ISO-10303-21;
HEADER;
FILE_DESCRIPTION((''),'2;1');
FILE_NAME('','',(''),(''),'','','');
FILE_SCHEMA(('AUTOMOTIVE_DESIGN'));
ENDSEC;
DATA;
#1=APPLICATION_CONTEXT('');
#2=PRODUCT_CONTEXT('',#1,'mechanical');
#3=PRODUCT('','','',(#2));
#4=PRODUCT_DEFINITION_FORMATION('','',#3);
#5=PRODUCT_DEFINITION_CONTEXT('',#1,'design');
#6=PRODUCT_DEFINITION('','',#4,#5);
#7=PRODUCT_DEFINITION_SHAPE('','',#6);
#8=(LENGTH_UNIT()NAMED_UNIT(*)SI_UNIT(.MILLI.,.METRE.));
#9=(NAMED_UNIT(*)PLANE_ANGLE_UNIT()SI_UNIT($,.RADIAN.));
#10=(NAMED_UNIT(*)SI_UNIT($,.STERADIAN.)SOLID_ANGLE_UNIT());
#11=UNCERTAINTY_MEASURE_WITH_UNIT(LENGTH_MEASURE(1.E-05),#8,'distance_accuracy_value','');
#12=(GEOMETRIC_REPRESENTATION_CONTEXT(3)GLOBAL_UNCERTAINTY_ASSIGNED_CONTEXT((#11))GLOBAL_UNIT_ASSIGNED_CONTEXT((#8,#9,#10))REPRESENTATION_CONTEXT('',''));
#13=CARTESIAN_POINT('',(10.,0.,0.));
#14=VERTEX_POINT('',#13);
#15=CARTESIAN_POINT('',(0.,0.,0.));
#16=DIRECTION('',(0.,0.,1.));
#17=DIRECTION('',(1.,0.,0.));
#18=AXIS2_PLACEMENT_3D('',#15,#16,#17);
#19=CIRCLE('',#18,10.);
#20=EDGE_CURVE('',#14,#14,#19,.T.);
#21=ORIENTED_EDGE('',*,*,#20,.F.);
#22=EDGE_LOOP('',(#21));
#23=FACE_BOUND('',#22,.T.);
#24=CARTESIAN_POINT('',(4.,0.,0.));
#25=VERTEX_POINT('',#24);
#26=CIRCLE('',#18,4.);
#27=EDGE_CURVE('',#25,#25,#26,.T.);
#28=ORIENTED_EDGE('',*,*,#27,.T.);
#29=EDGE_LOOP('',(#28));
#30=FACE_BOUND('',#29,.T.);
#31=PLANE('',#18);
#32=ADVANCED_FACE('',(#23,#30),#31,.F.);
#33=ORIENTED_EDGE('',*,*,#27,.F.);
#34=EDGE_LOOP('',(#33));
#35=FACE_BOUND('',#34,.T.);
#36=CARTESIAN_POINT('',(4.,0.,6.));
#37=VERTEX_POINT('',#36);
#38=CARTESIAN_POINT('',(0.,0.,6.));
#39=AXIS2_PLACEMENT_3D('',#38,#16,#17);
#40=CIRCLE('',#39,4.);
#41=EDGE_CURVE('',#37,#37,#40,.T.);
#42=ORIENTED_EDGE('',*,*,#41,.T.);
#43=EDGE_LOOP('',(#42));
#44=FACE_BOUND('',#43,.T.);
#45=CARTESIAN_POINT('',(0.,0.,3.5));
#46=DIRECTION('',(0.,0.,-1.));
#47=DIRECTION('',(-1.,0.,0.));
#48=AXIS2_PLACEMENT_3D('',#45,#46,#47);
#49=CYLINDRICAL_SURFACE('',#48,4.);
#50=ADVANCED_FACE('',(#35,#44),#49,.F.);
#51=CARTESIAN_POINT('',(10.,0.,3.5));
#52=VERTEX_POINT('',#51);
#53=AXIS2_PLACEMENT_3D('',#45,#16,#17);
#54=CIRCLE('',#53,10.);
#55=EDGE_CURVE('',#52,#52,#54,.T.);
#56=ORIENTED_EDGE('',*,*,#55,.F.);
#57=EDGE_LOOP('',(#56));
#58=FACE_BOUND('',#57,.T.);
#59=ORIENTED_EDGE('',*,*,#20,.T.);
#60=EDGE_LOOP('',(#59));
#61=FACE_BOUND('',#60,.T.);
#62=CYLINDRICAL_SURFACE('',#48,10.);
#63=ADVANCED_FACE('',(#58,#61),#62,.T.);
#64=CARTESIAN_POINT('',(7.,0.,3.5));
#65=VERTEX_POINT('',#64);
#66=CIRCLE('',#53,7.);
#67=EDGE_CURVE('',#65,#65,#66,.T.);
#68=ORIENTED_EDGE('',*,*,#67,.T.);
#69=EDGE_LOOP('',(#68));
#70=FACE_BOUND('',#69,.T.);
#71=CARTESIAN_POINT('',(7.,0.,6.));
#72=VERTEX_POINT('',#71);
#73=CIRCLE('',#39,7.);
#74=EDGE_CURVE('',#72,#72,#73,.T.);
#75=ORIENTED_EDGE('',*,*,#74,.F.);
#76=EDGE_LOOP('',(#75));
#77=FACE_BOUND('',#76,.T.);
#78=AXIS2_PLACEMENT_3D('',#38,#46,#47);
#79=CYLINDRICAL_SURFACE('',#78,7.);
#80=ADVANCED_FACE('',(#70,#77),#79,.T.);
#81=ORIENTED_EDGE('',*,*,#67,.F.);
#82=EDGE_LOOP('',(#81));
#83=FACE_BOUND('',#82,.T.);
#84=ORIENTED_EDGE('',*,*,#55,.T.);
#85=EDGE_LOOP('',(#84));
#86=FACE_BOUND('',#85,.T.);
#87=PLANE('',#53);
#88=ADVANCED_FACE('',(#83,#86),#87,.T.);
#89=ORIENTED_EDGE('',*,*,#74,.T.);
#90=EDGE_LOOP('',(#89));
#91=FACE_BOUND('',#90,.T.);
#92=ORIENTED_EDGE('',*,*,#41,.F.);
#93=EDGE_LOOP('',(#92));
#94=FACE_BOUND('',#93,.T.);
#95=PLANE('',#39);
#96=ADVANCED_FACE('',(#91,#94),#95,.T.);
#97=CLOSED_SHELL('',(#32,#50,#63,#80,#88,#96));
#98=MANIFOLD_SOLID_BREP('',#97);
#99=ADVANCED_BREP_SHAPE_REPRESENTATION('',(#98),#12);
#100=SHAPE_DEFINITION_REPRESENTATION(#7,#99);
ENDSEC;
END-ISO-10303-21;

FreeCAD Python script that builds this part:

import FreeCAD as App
import Part
import Sketcher

doc = App.newDocument("Part")
params = doc.addObject("Spreadsheet::Sheet", "Params")
for row, (alias, value) in enumerate([
    ("sketch1_diameter", "20 mm"),
    ("sketch1_diameter2", "8 mm"),
    ("pad1_length", "3.5 mm"),
    ("sketch2_diameter", "14 mm"),
    ("sketch2_diameter2", "8 mm"),
    ("pad2_length", "2.5 mm"),
], start=1):
    params.set(f"A{row}", alias)
    params.set(f"B{row}", "=" + value)
    params.setAlias(f"B{row}", alias)

body = doc.addObject("PartDesign::Body", "Body")

# Sketch on XY plane
sketch1 = body.newObject("Sketcher::SketchObject", "Sketch")
sketch1.AttachmentSupport = (doc.getObject("XY_Plane"), [""])
sketch1.MapMode = "FlatFace"
sketch1.addGeometry(Part.Circle(App.Vector(0, 0, 0), App.Vector(0, 0, 1), 10), False)
sketch1.addGeometry(Part.Circle(App.Vector(0, 0, 0), App.Vector(0, 0, 1), 4), False)
sketch1.addConstraint(Sketcher.Constraint("Coincident", 0, 3, -1, 1))
sketch1.addConstraint(Sketcher.Constraint("Coincident", 1, 3, -1, 1))
sketch1.addConstraint(Sketcher.Constraint("Diameter", 0, 20.0))
sketch1.addConstraint(Sketcher.Constraint("Diameter", 1, 8.0))
sketch1.setExpression("Constraints[2]", "Params.sketch1_diameter")
sketch1.setExpression("Constraints[3]", "Params.sketch1_diameter2")
pad1 = body.newObject("PartDesign::Pad", "Pad")
pad1.Profile = sketch1
pad1.setExpression("Length", "Params.pad1_length")

# Sketch on XY plane
sketch2 = body.newObject("Sketcher::SketchObject", "Sketch001")
sketch2.AttachmentSupport = (doc.getObject("XY_Plane"), [""])
sketch2.MapMode = "FlatFace"
sketch2.AttachmentOffset = App.Placement(App.Vector(0, 0, 3.5), App.Rotation())
sketch2.addGeometry(Part.Circle(App.Vector(0, 0, 0), App.Vector(0, 0, 1), 7), False)
sketch2.addGeometry(Part.Circle(App.Vector(0, 0, 0), App.Vector(0, 0, 1), 4), False)
sketch2.addConstraint(Sketcher.Constraint("Coincident", 0, 3, -1, 1))
sketch2.addConstraint(Sketcher.Constraint("Coincident", 1, 3, -1, 1))
sketch2.addConstraint(Sketcher.Constraint("Diameter", 0, 14.0))
sketch2.addConstraint(Sketcher.Constraint("Diameter", 1, 8.0))
sketch2.setExpression("Constraints[2]", "Params.sketch2_diameter")
sketch2.setExpression("Constraints[3]", "Params.sketch2_diameter2")
pad2 = body.newObject("PartDesign::Pad", "Pad001")
pad2.Profile = sketch2
pad2.setExpression("Length", "Params.pad2_length")

doc.recompute()
